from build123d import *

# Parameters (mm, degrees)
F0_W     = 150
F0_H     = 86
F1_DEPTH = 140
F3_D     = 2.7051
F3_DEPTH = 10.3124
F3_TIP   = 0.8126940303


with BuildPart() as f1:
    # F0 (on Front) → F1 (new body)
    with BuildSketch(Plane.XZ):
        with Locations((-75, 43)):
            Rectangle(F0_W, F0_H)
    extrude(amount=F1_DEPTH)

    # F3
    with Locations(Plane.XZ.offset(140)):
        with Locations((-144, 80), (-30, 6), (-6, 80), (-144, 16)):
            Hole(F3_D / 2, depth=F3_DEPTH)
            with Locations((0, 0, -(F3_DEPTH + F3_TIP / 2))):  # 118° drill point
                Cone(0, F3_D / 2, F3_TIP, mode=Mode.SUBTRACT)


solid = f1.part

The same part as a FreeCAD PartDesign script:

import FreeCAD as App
import Part
import Sketcher
from FreeCAD import Vector
Q = App.Units.Quantity

doc = App.newDocument("Part")
body = doc.addObject("PartDesign::Body", "Body")

sketch1 = doc.addObject("Sketcher::SketchObject", "Sketch")
body.addObject(sketch1)
sketch1.AttachmentSupport = (doc.XZ_Plane, [""])
sketch1.MapMode = "FlatFace"
sketch1.addGeometry([
    Part.LineSegment(Vector(-150, 86, 0), Vector(-150, 0, 0)),
    Part.LineSegment(Vector(-150, 0, 0), Vector(0, 0, 0)),
    Part.LineSegment(Vector(0, 0, 0), Vector(0, 86, 0)),
    Part.LineSegment(Vector(0, 86, 0), Vector(-150, 86, 0)),
], False)
sketch1.addConstraint([
    Sketcher.Constraint("Coincident", 0, 2, 1, 1),
    Sketcher.Constraint("Coincident", 1, 2, 2, 1),
    Sketcher.Constraint("Coincident", 2, 2, 3, 1),
    Sketcher.Constraint("Coincident", 3, 2, 0, 1),
    Sketcher.Constraint("Vertical", 0),
    Sketcher.Constraint("Horizontal", 1),
    Sketcher.Constraint("Vertical", 2),
    Sketcher.Constraint("Horizontal", 3),
    Sketcher.Constraint("Coincident", 1, 2, -1, 1),
    Sketcher.Constraint("DistanceX", 1, 1, 1, 2, Q("150 mm")),
    Sketcher.Constraint("DistanceY", 0, 2, 0, 1, Q("86 mm")),
])
pad1 = doc.addObject("PartDesign::Pad", "Pad")
body.addObject(pad1)
pad1.Profile = sketch1
pad1.Length = 140

sketch2 = doc.addObject("Sketcher::SketchObject", "Sketch001")
body.addObject(sketch2)
sketch2.AttachmentSupport = (doc.XZ_Plane, [""])
sketch2.MapMode = "FlatFace"
sketch2.AttachmentOffset = App.Placement(Vector(0, 0, 140), App.Rotation())
sketch2.addGeometry([
    Part.Circle(Vector(-144, 80, 0), Vector(0, 0, 1), 1.4),
    Part.Circle(Vector(-30, 6, 0), Vector(0, 0, 1), 1.4),
    Part.Circle(Vector(-6, 80, 0), Vector(0, 0, 1), 1.4),
    Part.Circle(Vector(-144, 16, 0), Vector(0, 0, 1), 1.4),
], False)
sketch2.addConstraint([
    Sketcher.Constraint("Equal", 0, 1),
    Sketcher.Constraint("Equal", 1, 2),
    Sketcher.Constraint("Equal", 2, 3),
    Sketcher.Constraint("Horizontal", 0, 3, 2, 3),
    Sketcher.Constraint("Vertical", 0, 3, 3, 3),
    Sketcher.Constraint("DistanceX", 0, 3, -1, 1, Q("144 mm")),
    Sketcher.Constraint("DistanceY", -1, 1, 0, 3, Q("80 mm")),
    Sketcher.Constraint("DistanceX", 1, 3, -1, 1, Q("30 mm")),
    Sketcher.Constraint("DistanceY", -1, 1, 1, 3, Q("6 mm")),
    Sketcher.Constraint("DistanceX", 2, 3, -1, 1, Q("6 mm")),
    Sketcher.Constraint("DistanceY", -1, 1, 3, 3, Q("16 mm")),
    Sketcher.Constraint("Diameter", 0, Q("2.7051 mm")),
])
doc.recompute()
hole = doc.addObject("PartDesign::Hole", "Hole")
body.addObject(hole)
hole.Profile = sketch2
hole.ThreadType = "None"
hole.Diameter = 2.7051
hole.DepthType = "Dimension"
hole.Depth = 10.3124
hole.DrillPoint = "Angled"
hole.DrillPointAngle = 118

doc.recompute()
